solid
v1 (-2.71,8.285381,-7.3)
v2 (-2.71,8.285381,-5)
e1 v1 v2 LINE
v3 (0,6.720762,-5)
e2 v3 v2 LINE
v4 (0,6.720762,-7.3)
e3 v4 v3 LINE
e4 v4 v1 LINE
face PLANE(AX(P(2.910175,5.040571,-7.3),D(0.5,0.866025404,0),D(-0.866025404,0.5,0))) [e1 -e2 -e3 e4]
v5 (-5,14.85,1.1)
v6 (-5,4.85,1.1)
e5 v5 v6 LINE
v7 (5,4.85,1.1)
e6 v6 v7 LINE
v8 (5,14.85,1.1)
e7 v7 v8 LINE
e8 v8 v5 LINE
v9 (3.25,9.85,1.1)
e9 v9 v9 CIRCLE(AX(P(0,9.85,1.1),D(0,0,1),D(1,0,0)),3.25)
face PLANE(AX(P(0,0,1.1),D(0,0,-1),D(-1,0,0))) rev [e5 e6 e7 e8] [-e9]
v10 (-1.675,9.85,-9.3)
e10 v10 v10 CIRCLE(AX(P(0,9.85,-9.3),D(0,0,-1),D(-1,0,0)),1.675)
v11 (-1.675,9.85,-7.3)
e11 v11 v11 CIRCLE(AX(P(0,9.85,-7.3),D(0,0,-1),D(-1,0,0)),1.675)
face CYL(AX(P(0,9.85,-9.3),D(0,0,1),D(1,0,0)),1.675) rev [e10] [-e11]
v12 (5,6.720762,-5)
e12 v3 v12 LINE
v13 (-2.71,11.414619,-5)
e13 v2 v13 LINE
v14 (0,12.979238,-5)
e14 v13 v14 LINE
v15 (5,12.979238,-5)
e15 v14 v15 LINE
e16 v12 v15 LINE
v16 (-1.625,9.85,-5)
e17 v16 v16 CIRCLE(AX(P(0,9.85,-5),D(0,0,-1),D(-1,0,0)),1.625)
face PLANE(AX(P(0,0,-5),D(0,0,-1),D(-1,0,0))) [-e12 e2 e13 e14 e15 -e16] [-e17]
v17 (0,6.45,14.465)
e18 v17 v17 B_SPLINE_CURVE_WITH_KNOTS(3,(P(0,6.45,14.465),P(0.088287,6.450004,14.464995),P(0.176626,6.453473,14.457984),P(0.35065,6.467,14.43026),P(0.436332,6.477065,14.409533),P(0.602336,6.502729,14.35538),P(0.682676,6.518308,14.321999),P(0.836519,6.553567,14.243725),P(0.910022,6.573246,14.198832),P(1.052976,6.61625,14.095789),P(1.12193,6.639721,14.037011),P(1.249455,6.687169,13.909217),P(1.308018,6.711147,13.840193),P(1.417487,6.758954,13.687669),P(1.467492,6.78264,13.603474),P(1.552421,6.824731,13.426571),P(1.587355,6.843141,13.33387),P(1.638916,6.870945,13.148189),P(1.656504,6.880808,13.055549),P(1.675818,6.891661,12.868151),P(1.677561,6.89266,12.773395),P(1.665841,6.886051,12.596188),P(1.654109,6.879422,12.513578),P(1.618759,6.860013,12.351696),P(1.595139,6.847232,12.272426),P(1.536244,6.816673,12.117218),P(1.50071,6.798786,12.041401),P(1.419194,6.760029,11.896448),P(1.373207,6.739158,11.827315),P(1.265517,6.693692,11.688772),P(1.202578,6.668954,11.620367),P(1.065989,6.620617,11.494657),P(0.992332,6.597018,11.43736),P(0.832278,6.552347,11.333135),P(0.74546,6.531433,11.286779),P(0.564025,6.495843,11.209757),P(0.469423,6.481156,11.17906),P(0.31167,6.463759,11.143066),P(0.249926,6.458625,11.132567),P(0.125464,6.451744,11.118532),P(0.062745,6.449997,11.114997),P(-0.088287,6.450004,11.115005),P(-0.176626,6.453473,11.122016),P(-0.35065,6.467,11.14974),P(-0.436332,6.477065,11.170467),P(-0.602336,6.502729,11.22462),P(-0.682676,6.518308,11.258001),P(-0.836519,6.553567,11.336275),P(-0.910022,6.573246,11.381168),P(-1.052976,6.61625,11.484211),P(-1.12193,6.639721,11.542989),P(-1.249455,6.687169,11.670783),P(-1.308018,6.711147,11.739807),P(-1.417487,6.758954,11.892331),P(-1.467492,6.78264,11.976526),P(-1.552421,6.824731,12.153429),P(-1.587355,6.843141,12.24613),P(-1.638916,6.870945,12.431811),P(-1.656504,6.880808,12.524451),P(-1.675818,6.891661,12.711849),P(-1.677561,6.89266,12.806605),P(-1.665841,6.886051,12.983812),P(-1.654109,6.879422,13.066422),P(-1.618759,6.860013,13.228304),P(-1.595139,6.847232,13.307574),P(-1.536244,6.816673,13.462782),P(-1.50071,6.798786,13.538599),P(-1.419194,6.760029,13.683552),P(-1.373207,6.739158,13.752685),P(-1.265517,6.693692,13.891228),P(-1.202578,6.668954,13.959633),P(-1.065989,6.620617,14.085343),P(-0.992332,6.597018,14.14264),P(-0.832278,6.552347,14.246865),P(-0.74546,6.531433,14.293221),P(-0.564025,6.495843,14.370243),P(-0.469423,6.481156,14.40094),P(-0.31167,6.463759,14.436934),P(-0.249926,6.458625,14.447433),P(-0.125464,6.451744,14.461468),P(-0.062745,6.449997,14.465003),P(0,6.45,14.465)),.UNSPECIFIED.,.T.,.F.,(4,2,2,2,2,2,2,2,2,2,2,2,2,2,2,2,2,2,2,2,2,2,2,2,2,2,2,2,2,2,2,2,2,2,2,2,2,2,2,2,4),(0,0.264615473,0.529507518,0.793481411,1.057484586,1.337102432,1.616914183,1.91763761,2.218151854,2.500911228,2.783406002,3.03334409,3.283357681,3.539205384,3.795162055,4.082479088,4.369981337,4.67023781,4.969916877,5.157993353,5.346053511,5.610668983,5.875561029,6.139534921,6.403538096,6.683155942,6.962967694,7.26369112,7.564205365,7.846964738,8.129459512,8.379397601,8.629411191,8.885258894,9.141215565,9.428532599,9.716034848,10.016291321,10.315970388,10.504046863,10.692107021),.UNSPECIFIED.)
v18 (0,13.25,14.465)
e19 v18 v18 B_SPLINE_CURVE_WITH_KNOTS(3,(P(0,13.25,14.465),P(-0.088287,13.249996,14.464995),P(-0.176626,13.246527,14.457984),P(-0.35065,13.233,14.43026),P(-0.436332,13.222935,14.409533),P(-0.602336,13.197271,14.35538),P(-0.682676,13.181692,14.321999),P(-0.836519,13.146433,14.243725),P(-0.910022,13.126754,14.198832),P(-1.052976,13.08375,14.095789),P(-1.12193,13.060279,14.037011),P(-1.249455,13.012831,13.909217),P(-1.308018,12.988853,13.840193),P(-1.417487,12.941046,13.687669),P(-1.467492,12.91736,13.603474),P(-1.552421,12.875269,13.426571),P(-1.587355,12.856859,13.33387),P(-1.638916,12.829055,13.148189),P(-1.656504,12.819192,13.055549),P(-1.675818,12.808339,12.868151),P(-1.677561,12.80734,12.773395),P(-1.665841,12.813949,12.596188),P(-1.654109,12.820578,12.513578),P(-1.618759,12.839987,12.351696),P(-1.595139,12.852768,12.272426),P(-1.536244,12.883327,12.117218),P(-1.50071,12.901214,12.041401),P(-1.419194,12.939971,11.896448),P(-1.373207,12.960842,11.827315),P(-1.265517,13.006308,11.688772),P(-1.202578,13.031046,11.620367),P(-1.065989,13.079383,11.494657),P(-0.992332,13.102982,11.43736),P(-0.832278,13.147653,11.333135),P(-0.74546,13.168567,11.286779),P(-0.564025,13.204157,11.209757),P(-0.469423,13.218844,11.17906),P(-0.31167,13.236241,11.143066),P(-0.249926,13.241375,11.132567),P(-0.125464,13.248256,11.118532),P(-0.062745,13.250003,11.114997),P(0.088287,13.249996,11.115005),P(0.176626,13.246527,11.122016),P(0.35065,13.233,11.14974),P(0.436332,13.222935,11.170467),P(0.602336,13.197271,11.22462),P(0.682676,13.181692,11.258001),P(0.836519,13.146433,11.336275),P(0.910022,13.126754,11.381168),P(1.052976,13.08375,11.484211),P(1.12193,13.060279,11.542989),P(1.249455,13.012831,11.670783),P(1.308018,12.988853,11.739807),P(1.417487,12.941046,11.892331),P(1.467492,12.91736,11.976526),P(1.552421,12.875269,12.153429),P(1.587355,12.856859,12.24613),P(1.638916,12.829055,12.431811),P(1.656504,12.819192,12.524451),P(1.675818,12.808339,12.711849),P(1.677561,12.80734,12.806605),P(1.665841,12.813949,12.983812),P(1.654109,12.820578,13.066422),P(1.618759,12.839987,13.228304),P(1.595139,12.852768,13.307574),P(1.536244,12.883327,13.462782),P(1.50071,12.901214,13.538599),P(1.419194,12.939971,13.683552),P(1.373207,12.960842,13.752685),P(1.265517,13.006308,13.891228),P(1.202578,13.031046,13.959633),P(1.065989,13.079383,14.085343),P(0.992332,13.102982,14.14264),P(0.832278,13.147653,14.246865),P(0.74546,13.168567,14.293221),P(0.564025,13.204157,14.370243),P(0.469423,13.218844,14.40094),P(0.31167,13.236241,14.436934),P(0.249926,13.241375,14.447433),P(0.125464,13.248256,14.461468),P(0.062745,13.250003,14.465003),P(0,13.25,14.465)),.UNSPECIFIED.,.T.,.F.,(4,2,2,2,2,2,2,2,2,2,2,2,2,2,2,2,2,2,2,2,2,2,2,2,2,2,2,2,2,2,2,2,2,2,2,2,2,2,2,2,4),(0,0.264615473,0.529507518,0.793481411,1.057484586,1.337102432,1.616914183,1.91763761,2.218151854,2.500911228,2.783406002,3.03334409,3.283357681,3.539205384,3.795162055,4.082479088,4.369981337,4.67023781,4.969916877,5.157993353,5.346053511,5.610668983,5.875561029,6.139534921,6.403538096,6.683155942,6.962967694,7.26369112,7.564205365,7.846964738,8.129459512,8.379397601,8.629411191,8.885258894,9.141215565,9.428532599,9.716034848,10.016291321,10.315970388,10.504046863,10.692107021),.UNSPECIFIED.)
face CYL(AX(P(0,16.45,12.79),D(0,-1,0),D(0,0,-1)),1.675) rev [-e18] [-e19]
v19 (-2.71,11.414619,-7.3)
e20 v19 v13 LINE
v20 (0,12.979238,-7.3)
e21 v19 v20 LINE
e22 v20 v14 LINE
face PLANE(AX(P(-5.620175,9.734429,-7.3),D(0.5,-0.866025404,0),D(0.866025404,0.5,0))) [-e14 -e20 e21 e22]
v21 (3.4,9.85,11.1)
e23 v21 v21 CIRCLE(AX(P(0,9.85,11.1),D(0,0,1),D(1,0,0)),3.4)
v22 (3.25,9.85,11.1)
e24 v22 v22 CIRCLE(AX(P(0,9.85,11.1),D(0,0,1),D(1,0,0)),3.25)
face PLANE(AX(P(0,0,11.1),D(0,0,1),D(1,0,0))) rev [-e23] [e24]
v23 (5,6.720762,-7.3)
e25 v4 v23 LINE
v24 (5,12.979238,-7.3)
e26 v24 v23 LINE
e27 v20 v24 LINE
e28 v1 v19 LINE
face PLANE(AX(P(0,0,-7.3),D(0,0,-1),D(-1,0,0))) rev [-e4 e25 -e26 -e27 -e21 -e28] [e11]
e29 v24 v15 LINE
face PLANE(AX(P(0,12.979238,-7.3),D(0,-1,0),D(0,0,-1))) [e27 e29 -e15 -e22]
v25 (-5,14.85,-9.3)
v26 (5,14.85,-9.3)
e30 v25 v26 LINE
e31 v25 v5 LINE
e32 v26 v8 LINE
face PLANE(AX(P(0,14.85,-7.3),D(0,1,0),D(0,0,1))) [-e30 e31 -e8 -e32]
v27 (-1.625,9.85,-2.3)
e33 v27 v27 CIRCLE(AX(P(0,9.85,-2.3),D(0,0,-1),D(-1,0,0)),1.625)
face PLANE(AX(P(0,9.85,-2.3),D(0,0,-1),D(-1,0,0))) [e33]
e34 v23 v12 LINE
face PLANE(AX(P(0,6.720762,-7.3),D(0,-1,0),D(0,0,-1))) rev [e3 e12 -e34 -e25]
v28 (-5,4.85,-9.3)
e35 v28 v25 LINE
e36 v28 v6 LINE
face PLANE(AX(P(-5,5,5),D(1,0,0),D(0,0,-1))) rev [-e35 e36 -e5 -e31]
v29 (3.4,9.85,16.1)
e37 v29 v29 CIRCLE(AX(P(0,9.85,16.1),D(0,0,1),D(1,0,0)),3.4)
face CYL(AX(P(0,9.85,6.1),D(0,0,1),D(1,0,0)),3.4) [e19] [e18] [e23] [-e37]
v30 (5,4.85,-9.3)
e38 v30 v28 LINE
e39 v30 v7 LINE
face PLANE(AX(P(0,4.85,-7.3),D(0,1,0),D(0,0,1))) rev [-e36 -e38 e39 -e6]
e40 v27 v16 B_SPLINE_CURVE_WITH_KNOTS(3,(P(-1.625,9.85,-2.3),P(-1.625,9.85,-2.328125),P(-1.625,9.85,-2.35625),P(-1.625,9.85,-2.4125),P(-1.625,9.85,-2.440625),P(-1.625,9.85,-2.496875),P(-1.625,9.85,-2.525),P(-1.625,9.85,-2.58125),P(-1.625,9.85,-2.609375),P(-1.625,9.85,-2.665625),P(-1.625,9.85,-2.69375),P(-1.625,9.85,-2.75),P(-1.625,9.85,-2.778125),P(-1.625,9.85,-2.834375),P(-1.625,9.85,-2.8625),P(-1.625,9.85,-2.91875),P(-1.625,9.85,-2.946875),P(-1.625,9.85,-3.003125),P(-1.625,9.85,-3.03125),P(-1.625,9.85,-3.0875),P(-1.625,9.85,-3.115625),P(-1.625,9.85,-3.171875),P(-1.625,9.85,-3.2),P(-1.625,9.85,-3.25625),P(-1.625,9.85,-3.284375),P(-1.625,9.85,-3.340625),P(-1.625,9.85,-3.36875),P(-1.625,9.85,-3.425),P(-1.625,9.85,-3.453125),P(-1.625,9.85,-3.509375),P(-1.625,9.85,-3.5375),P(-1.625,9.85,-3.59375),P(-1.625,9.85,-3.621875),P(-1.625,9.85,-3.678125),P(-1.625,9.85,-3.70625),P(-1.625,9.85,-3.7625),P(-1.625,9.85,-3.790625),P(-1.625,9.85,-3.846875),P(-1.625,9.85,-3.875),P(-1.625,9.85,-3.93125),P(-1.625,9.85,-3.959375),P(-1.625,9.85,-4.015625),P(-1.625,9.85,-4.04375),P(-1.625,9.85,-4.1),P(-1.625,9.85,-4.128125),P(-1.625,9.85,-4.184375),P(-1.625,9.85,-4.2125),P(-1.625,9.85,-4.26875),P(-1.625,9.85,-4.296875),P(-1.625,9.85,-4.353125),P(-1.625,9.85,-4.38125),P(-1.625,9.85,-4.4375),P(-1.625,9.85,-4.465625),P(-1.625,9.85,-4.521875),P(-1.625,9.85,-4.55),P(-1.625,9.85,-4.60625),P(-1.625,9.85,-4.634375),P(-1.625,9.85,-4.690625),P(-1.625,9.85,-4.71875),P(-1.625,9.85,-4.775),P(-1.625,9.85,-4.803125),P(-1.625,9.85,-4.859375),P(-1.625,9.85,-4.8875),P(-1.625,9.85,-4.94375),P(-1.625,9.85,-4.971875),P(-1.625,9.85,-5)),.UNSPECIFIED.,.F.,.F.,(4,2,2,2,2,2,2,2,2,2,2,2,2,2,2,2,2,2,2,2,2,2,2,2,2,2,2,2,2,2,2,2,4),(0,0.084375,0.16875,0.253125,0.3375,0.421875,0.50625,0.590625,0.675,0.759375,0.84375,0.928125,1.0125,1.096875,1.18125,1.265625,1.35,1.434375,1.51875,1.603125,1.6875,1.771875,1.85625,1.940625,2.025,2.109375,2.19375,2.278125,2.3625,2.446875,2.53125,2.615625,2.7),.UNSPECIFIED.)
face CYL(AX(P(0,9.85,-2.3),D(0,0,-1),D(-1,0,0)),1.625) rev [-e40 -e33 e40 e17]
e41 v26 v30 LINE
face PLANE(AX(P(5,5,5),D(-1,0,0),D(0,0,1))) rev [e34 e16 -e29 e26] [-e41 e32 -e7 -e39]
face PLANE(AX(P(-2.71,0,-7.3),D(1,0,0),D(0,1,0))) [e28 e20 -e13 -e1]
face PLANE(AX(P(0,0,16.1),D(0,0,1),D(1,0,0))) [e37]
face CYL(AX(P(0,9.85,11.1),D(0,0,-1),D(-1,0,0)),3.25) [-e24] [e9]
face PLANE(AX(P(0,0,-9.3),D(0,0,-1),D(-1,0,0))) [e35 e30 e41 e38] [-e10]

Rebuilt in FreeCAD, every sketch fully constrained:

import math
import FreeCAD as App
import Part
import Sketcher
from FreeCAD import Vector
Q = App.Units.Quantity

doc = App.newDocument("Part")
body = doc.addObject("PartDesign::Body", "Body")

sketch1 = doc.addObject("Sketcher::SketchObject", "Sketch")
body.addObject(sketch1)
sketch1.AttachmentSupport = (doc.XZ_Plane, [""])
sketch1.MapMode = "FlatFace"
sketch1.addGeometry(Part.LineSegment(Vector(-5, -5, 0), Vector(-5, 5, 0)), False)
sketch1.addGeometry(Part.LineSegment(Vector(-5, 5, 0), Vector(5, 5, 0)), False)
sketch1.addGeometry(Part.LineSegment(Vector(5, 5, 0), Vector(5, -5, 0)), False)
sketch1.addGeometry(Part.LineSegment(Vector(5, -5, 0), Vector(-5, -5, 0)), False)
sketch1.addConstraint(Sketcher.Constraint("Coincident", 0, 2, 1, 1))
sketch1.addConstraint(Sketcher.Constraint("Coincident", 1, 2, 2, 1))
sketch1.addConstraint(Sketcher.Constraint("Coincident", 2, 2, 3, 1))
sketch1.addConstraint(Sketcher.Constraint("Coincident", 3, 2, 0, 1))
sketch1.addConstraint(Sketcher.Constraint("Vertical", 0))
sketch1.addConstraint(Sketcher.Constraint("Horizontal", 1))
sketch1.addConstraint(Sketcher.Constraint("Vertical", 2))
sketch1.addConstraint(Sketcher.Constraint("Horizontal", 3))
sketch1.addConstraint(Sketcher.Constraint("Symmetric", 0, 2, 2, 2, -1, 1))
sketch1.addConstraint(Sketcher.Constraint("Equal", 3, 0))
sketch1.addConstraint(Sketcher.Constraint("DistanceX", 1, 1, 1, 2, 10.0))
pad1 = doc.addObject("PartDesign::Pad", "Pad")
body.addObject(pad1)
pad1.Profile = sketch1
pad1.Length = 5
pad1.Reversed = True

sketch2 = doc.addObject("Sketcher::SketchObject", "Sketch001")
body.addObject(sketch2)
sketch2.AttachmentSupport = (doc.XZ_Plane, [""])
sketch2.MapMode = "FlatFace"
sketch2.AttachmentOffset = App.Placement(Vector(0, 0, -5), App.Rotation())
sketch2.addGeometry(Part.Circle(Vector(0, 0, 0), Vector(0, 0, 1), 1.7), False)
sketch2.addConstraint(Sketcher.Constraint("Coincident", 0, 3, -1, 1))
sketch2.addConstraint(Sketcher.Constraint("Diameter", 0, 3.35))
pocket1 = doc.addObject("PartDesign::Pocket", "Pocket")
body.addObject(pocket1)
pocket1.Profile = sketch2
pocket1.Type = "ThroughAll"
pocket1.Midplane = True

sketch3 = doc.addObject("Sketcher::SketchObject", "Sketch002")
body.addObject(sketch3)
sketch3.AttachmentSupport = (doc.XZ_Plane, [""])
sketch3.MapMode = "FlatFace"
sketch3.AttachmentOffset = App.Placement(Vector(0, 0, -5), App.Rotation())
sketch3.addGeometry(Part.LineSegment(Vector(-1.6, -2.7, 0), Vector(-3.1, 0, 0)), False)
sketch3.addGeometry(Part.LineSegment(Vector(-3.1, 0, 0), Vector(-3.1, 5, 0)), False)
sketch3.addGeometry(Part.LineSegment(Vector(-3.1, 5, 0), Vector(3.1, 5, 0)), False)
sketch3.addGeometry(Part.LineSegment(Vector(3.1, 5, 0), Vector(3.1, 0, 0)), False)
sketch3.addGeometry(Part.LineSegment(Vector(3.1, 0, 0), Vector(1.6, -2.7, 0)), False)
sketch3.addGeometry(Part.LineSegment(Vector(1.6, -2.7, 0), Vector(-1.6, -2.7, 0)), False)
sketch3.addGeometry(Part.Circle(Vector(0, 0, 0), Vector(0, 0, 1), 1.7), False)
sketch3.addConstraint(Sketcher.Constraint("Coincident", 0, 2, 1, 1))
sketch3.addConstraint(Sketcher.Constraint("Coincident", 1, 2, 2, 1))
sketch3.addConstraint(Sketcher.Constraint("Coincident", 2, 2, 3, 1))
sketch3.addConstraint(Sketcher.Constraint("Coincident", 3, 2, 4, 1))
sketch3.addConstraint(Sketcher.Constraint("Coincident", 4, 2, 5, 1))
sketch3.addConstraint(Sketcher.Constraint("Coincident", 5, 2, 0, 1))
sketch3.addConstraint(Sketcher.Constraint("Vertical", 1))
sketch3.addConstraint(Sketcher.Constraint("Horizontal", 2))
sketch3.addConstraint(Sketcher.Constraint("Vertical", 3))
sketch3.addConstraint(Sketcher.Constraint("Horizontal", 5))
sketch3.addConstraint(Sketcher.Constraint("Coincident", 6, 3, -1, 1))
sketch3.addConstraint(Sketcher.Constraint("Symmetric", 0, 2, 3, 2, -1, 1))
sketch3.addConstraint(Sketcher.Constraint("PointOnObject", 0, 2, -1))
sketch3.addConstraint(Sketcher.Constraint("Equal", 0, 4))
sketch3.addConstraint(Sketcher.Constraint("Diameter", 6, 3.35))
sketch3.addConstraint(Sketcher.Constraint("DistanceY", 1, 1, 1, 2, 5.0))
sketch3.addConstraint(Sketcher.Constraint("Angle", 0, Q("120 deg")))
sketch3.addConstraint(Sketcher.Constraint("DistanceY", 4, 2, -1, 1, 2.71))
sketch3.addConstraint(Sketcher.Constraint("DistanceX", 5, 2, 5, 1, 3.129238))
pocket2 = doc.addObject("PartDesign::Pocket", "Pocket001")
body.addObject(pocket2)
pocket2.Profile = sketch3
pocket2.Length = 2.3
pocket2.Reversed = True

sketch4 = doc.addObject("Sketcher::SketchObject", "Sketch003")
body.addObject(sketch4)
sketch4.AttachmentSupport = (doc.XZ_Plane, [""])
sketch4.MapMode = "FlatFace"
sketch4.AttachmentOffset = App.Placement(Vector(0, 0, -5), App.Rotation())
sketch4.addGeometry(Part.LineSegment(Vector(-5, -5, 0), Vector(-5, 5, 0)), False)
sketch4.addGeometry(Part.LineSegment(Vector(-5, 5, 0), Vector(5, 5, 0)), False)
sketch4.addGeometry(Part.LineSegment(Vector(5, 5, 0), Vector(5, -5, 0)), False)
sketch4.addGeometry(Part.LineSegment(Vector(5, -5, 0), Vector(-5, -5, 0)), False)
sketch4.addConstraint(Sketcher.Constraint("Coincident", 0, 2, 1, 1))
sketch4.addConstraint(Sketcher.Constraint("Coincident", 1, 2, 2, 1))
sketch4.addConstraint(Sketcher.Constraint("Coincident", 2, 2, 3, 1))
sketch4.addConstraint(Sketcher.Constraint("Coincident", 3, 2, 0, 1))
sketch4.addConstraint(Sketcher.Constraint("Vertical", 0))
sketch4.addConstraint(Sketcher.Constraint("Horizontal", 1))
sketch4.addConstraint(Sketcher.Constraint("Vertical", 2))
sketch4.addConstraint(Sketcher.Constraint("Horizontal", 3))
sketch4.addConstraint(Sketcher.Constraint("Symmetric", 0, 2, 2, 2, -1, 1))
sketch4.addConstraint(Sketcher.Constraint("Equal", 3, 0))
sketch4.addConstraint(Sketcher.Constraint("DistanceX", 1, 1, 1, 2, 10.0))
pad2 = doc.addObject("PartDesign::Pad", "Pad001")
body.addObject(pad2)
pad2.Profile = sketch4
pad2.Length = 2.7
pad2.Reversed = True

sketch5 = doc.addObject("Sketcher::SketchObject", "Sketch004")
body.addObject(sketch5)
sketch5.AttachmentSupport = (doc.XZ_Plane, [""])
sketch5.MapMode = "FlatFace"
sketch5.AttachmentOffset = App.Placement(Vector(0, 0, -7.7), App.Rotation())
sketch5.addGeometry(Part.LineSegment(Vector(-5, -5, 0), Vector(-5, 5, 0)), False)
sketch5.addGeometry(Part.LineSegment(Vector(-5, 5, 0), Vector(5, 5, 0)), False)
sketch5.addGeometry(Part.LineSegment(Vector(5, 5, 0), Vector(5, -5, 0)), False)
sketch5.addGeometry(Part.LineSegment(Vector(5, -5, 0), Vector(-5, -5, 0)), False)
sketch5.addConstraint(Sketcher.Constraint("Coincident", 0, 2, 1, 1))
sketch5.addConstraint(Sketcher.Constraint("Coincident", 1, 2, 2, 1))
sketch5.addConstraint(Sketcher.Constraint("Coincident", 2, 2, 3, 1))
sketch5.addConstraint(Sketcher.Constraint("Coincident", 3, 2, 0, 1))
sketch5.addConstraint(Sketcher.Constraint("Vertical", 0))
sketch5.addConstraint(Sketcher.Constraint("Horizontal", 1))
sketch5.addConstraint(Sketcher.Constraint("Vertical", 2))
sketch5.addConstraint(Sketcher.Constraint("Horizontal", 3))
sketch5.addConstraint(Sketcher.Constraint("Symmetric", 0, 2, 2, 2, -1, 1))
sketch5.addConstraint(Sketcher.Constraint("Equal", 3, 0))
sketch5.addConstraint(Sketcher.Constraint("DistanceX", 1, 1, 1, 2, 10.0))
pad3 = doc.addObject("PartDesign::Pad", "Pad002")
body.addObject(pad3)
pad3.Profile = sketch5
pad3.Length = 7
pad3.Reversed = True

sketch6 = doc.addObject("Sketcher::SketchObject", "Sketch005")
body.addObject(sketch6)
sketch6.AttachmentSupport = (doc.XY_Plane, [""])
sketch6.MapMode = "FlatFace"
sketch6.AttachmentOffset = App.Placement(Vector(0, 0, -5), App.Rotation())
sketch6.addGeometry(Part.Circle(Vector(0, 9.8, 0), Vector(0, 0, 1), 2.1), False)
sketch6.addConstraint(Sketcher.Constraint("PointOnObject", 0, 3, -2))
sketch6.addConstraint(Sketcher.Constraint("Diameter", 0, 4.3))
sketch6.addConstraint(Sketcher.Constraint("DistanceY", -1, 1, 0, 3, 9.85))
pocket3 = doc.addObject("PartDesign::Pocket", "Pocket002")
body.addObject(pocket3)
pocket3.Profile = sketch6
pocket3.Type = "ThroughAll"
pocket3.Reversed = True

sketch7 = doc.addObject("Sketcher::SketchObject", "Sketch006")
body.addObject(sketch7)
sketch7.AttachmentSupport = (doc.XZ_Plane, [""])
sketch7.MapMode = "FlatFace"
sketch7.AttachmentOffset = App.Placement(Vector(0, 0, -5), App.Rotation())
sketch7.addGeometry(Part.Circle(Vector(0, 0, 0), Vector(0, 0, 1), 1.7), False)
sketch7.addConstraint(Sketcher.Constraint("Coincident", 0, 3, -1, 1))
sketch7.addConstraint(Sketcher.Constraint("Diameter", 0, 3.35))
pocket4 = doc.addObject("PartDesign::Pocket", "Pocket003")
body.addObject(pocket4)
pocket4.Profile = sketch7
pocket4.Type = "ThroughAll"

sketch8 = doc.addObject("Sketcher::SketchObject", "Sketch007")
body.addObject(sketch8)
sketch8.AttachmentSupport = (doc.XZ_Plane, [""])
sketch8.MapMode = "FlatFace"
sketch8.AttachmentOffset = App.Placement(Vector(0, 0, -14.7), App.Rotation())
sketch8.addGeometry(Part.LineSegment(Vector(1.6, -2.7, 0), Vector(3.1, 0, 0)), False)
sketch8.addGeometry(Part.LineSegment(Vector(3.1, 0, 0), Vector(3.1, 5, 0)), False)
sketch8.addGeometry(Part.LineSegment(Vector(3.1, 5, 0), Vector(5, 5, 0)), False)
sketch8.addGeometry(Part.LineSegment(Vector(5, 5, 0), Vector(5, -5, 0)), False)
sketch8.addGeometry(Part.LineSegment(Vector(5, -5, 0), Vector(-5, -5, 0)), False)
sketch8.addGeometry(Part.LineSegment(Vector(-5, -5, 0), Vector(-5, 5, 0)), False)
sketch8.addGeometry(Part.LineSegment(Vector(-5, 5, 0), Vector(-3.1, 5, 0)), False)
sketch8.addGeometry(Part.LineSegment(Vector(-3.1, 5, 0), Vector(-3.1, 0, 0)), False)
sketch8.addGeometry(Part.LineSegment(Vector(-3.1, 0, 0), Vector(-1.6, -2.7, 0)), False)
sketch8.addGeometry(Part.LineSegment(Vector(-1.6, -2.7, 0), Vector(1.6, -2.7, 0)), False)
sketch8.addConstraint(Sketcher.Constraint("Coincident", 0, 2, 1, 1))
sketch8.addConstraint(Sketcher.Constraint("Coincident", 1, 2, 2, 1))
sketch8.addConstraint(Sketcher.Constraint("Coincident", 2, 2, 3, 1))
sketch8.addConstraint(Sketcher.Constraint("Coincident", 3, 2, 4, 1))
sketch8.addConstraint(Sketcher.Constraint("Coincident", 4, 2, 5, 1))
sketch8.addConstraint(Sketcher.Constraint("Coincident", 5, 2, 6, 1))
sketch8.addConstraint(Sketcher.Constraint("Coincident", 6, 2, 7, 1))
sketch8.addConstraint(Sketcher.Constraint("Coincident", 7, 2, 8, 1))
sketch8.addConstraint(Sketcher.Constraint("Coincident", 8, 2, 9, 1))
sketch8.addConstraint(Sketcher.Constraint("Coincident", 9, 2, 0, 1))
sketch8.addConstraint(Sketcher.Constraint("Vertical", 1))
sketch8.addConstraint(Sketcher.Constraint("Horizontal", 2))
sketch8.addConstraint(Sketcher.Constraint("Vertical", 3))
sketch8.addConstraint(Sketcher.Constraint("Horizontal", 4))
sketch8.addConstraint(Sketcher.Constraint("Vertical", 5))
sketch8.addConstraint(Sketcher.Constraint("Horizontal", 6))
sketch8.addConstraint(Sketcher.Constraint("Vertical", 7))
sketch8.addConstraint(Sketcher.Constraint("Horizontal", 9))
sketch8.addConstraint(Sketcher.Constraint("Symmetric", 2, 2, 4, 2, -1, 1))
sketch8.addConstraint(Sketcher.Constraint("Symmetric", 0, 2, 7, 2, -1, 1))
sketch8.addConstraint(Sketcher.Constraint("PointOnObject", 0, 2, -1))
sketch8.addConstraint(Sketcher.Constraint("Horizontal", 2, 2, 5, 2))
sketch8.addConstraint(Sketcher.Constraint("Equal", 4, 3))
sketch8.addConstraint(Sketcher.Constraint("Equal", 0, 8))
sketch8.addConstraint(Sketcher.Constraint("DistanceX", 4, 2, 4, 1, 10.0))
sketch8.addConstraint(Sketcher.Constraint("Angle", 0, Q("60 deg")))
sketch8.addConstraint(Sketcher.Constraint("DistanceY", 8, 2, -1, 1, 2.71))
sketch8.addConstraint(Sketcher.Constraint("DistanceX", 2, 1, 2, 2, 1.870762))
pad4 = doc.addObject("PartDesign::Pad", "Pad003")
body.addObject(pad4)
pad4.Profile = sketch8
pad4.Length = 2.3
pad4.Reversed = True

sketch9 = doc.addObject("Sketcher::SketchObject", "Sketch008")
body.addObject(sketch9)
sketch9.AttachmentSupport = (doc.XZ_Plane, [""])
sketch9.MapMode = "FlatFace"
sketch9.AttachmentOffset = App.Placement(Vector(0, 0, -17), App.Rotation())
sketch9.addGeometry(Part.LineSegment(Vector(-5, -5, 0), Vector(-5, 5, 0)), False)
sketch9.addGeometry(Part.LineSegment(Vector(-5, 5, 0), Vector(5, 5, 0)), False)
sketch9.addGeometry(Part.LineSegment(Vector(5, 5, 0), Vector(5, -5, 0)), False)
sketch9.addGeometry(Part.LineSegment(Vector(5, -5, 0), Vector(-5, -5, 0)), False)
sketch9.addConstraint(Sketcher.Constraint("Coincident", 0, 2, 1, 1))
sketch9.addConstraint(Sketcher.Constraint("Coincident", 1, 2, 2, 1))
sketch9.addConstraint(Sketcher.Constraint("Coincident", 2, 2, 3, 1))
sketch9.addConstraint(Sketcher.Constraint("Coincident", 3, 2, 0, 1))
sketch9.addConstraint(Sketcher.Constraint("Vertical", 0))
sketch9.addConstraint(Sketcher.Constraint("Horizontal", 1))
sketch9.addConstraint(Sketcher.Constraint("Vertical", 2))
sketch9.addConstraint(Sketcher.Constraint("Horizontal", 3))
sketch9.addConstraint(Sketcher.Constraint("Symmetric", 0, 2, 2, 2, -1, 1))
sketch9.addConstraint(Sketcher.Constraint("Equal", 3, 0))
sketch9.addConstraint(Sketcher.Constraint("DistanceX", 1, 1, 1, 2, 10.0))
pad5 = doc.addObject("PartDesign::Pad", "Pad004")
body.addObject(pad5)
pad5.Profile = sketch9
pad5.Length = 2.7
pad5.Reversed = True

sketch10 = doc.addObject("Sketcher::SketchObject", "Sketch009")
body.addObject(sketch10)
sketch10.AttachmentSupport = (doc.XZ_Plane, [""])
sketch10.MapMode = "FlatFace"
sketch10.AttachmentOffset = App.Placement(Vector(0, 0, -17), App.Rotation())
sketch10.addGeometry(Part.Circle(Vector(0, 0, 0), Vector(0, 0, 1), 1.7), False)
sketch10.addConstraint(Sketcher.Constraint("Coincident", 0, 3, -1, 1))
sketch10.addConstraint(Sketcher.Constraint("Diameter", 0, 3.35))
pocket5 = doc.addObject("PartDesign::Pocket", "Pocket004")
body.addObject(pocket5)
pocket5.Profile = sketch10
pocket5.Length = 2.7

sketch11 = doc.addObject("Sketcher::SketchObject", "Sketch010")
body.addObject(sketch11)
sketch11.AttachmentSupport = (doc.XY_Plane, [""])
sketch11.MapMode = "FlatFace"
sketch11.AttachmentOffset = App.Placement(Vector(0, 0, 5), App.Rotation())
sketch11.addGeometry(Part.LineSegment(Vector(-5, 20, 0), Vector(-5, 0, 0)), False)
sketch11.addGeometry(Part.LineSegment(Vector(-5, 0, 0), Vector(5, 0, 0)), False)
sketch11.addGeometry(Part.LineSegment(Vector(5, 0, 0), Vector(5, 20, 0)), False)
sketch11.addGeometry(Part.LineSegment(Vector(5, 20, 0), Vector(-5, 20, 0)), False)
sketch11.addConstraint(Sketcher.Constraint("Coincident", 0, 2, 1, 1))
sketch11.addConstraint(Sketcher.Constraint("Coincident", 1, 2, 2, 1))
sketch11.addConstraint(Sketcher.Constraint("Coincident", 2, 2, 3, 1))
sketch11.addConstraint(Sketcher.Constraint("Coincident", 3, 2, 0, 1))
sketch11.addConstraint(Sketcher.Constraint("Vertical", 0))
sketch11.addConstraint(Sketcher.Constraint("Horizontal", 1))
sketch11.addConstraint(Sketcher.Constraint("Vertical", 2))
sketch11.addConstraint(Sketcher.Constraint("Horizontal", 3))
sketch11.addConstraint(Sketcher.Constraint("Symmetric", 0, 2, 1, 2, -1, 1))
sketch11.addConstraint(Sketcher.Constraint("DistanceX", 1, 1, 1, 2, 10.0))
sketch11.addConstraint(Sketcher.Constraint("DistanceY", 0, 2, 0, 1, 19.7))
pocket6 = doc.addObject("PartDesign::Pocket", "Pocket005")
body.addObject(pocket6)
pocket6.Profile = sketch11
pocket6.Length = 2.29

sketch12 = doc.addObject("Sketcher::SketchObject", "Sketch011")
body.addObject(sketch12)
sketch12.AttachmentSupport = (doc.XZ_Plane, [""])
sketch12.MapMode = "FlatFace"
sketch12.AttachmentOffset = App.Placement(Vector(0, 0, 1), App.Rotation())
sketch12.addGeometry(Part.LineSegment(Vector(5, -5, 0), Vector(5, 2.7, 0)), False)
sketch12.addGeometry(Part.LineSegment(Vector(5, 2.7, 0), Vector(-5, 2.7, 0)), False)
sketch12.addGeometry(Part.LineSegment(Vector(-5, 2.7, 0), Vector(-5, -5, 0)), False)
sketch12.addGeometry(Part.LineSegment(Vector(-5, -5, 0), Vector(5, -5, 0)), False)
sketch12.addGeometry(Part.Circle(Vector(0, 0, 0), Vector(0, 0, 1), 1.7), False)
sketch12.addConstraint(Sketcher.Constraint("Coincident", 0, 2, 1, 1))
sketch12.addConstraint(Sketcher.Constraint("Coincident", 1, 2, 2, 1))
sketch12.addConstraint(Sketcher.Constraint("Coincident", 2, 2, 3, 1))
sketch12.addConstraint(Sketcher.Constraint("Coincident", 3, 2, 0, 1))
sketch12.addConstraint(Sketcher.Constraint("Vertical", 0))
sketch12.addConstraint(Sketcher.Constraint("Horizontal", 1))
sketch12.addConstraint(Sketcher.Constraint("Vertical", 2))
sketch12.addConstraint(Sketcher.Constraint("Horizontal", 3))
sketch12.addConstraint(Sketcher.Constraint("Coincident", 4, 3, -1, 1))
sketch12.addConstraint(Sketcher.Constraint("Diameter", 4, 3.35))
sketch12.addConstraint(Sketcher.Constraint("DistanceX", 1, 2, 1, 1, 10.0))
sketch12.addConstraint(Sketcher.Constraint("DistanceX", -1, 1, 0, 2, 5.0))
sketch12.addConstraint(Sketcher.Constraint("DistanceY", 2, 2, -1, 1, 5.0))
sketch12.addConstraint(Sketcher.Constraint("DistanceY", 0, 1, 0, 2, 7.71))
pad6 = doc.addObject("PartDesign::Pad", "Pad005")
body.addObject(pad6)
pad6.Profile = sketch12
pad6.Length = 1
pad6.Reversed = True

sketch13 = doc.addObject("Sketcher::SketchObject", "Sketch012")
body.addObject(sketch13)
sketch13.AttachmentSupport = (doc.XZ_Plane, [""])
sketch13.MapMode = "FlatFace"
sketch13.AttachmentOffset = App.Placement(Vector(0, 0, -19.7), App.Rotation())
sketch13.addGeometry(Part.LineSegment(Vector(-5, -5, 0), Vector(-5, 2.7, 0)), False)
sketch13.addGeometry(Part.LineSegment(Vector(-5, 2.7, 0), Vector(5, 2.7, 0)), False)
sketch13.addGeometry(Part.LineSegment(Vector(5, 2.7, 0), Vector(5, -5, 0)), False)
sketch13.addGeometry(Part.LineSegment(Vector(5, -5, 0), Vector(-5, -5, 0)), False)
sketch13.addGeometry(Part.Circle(Vector(0, 0, 0), Vector(0, 0, 1), 1.7), False)
sketch13.addConstraint(Sketcher.Constraint("Coincident", 0, 2, 1, 1))
sketch13.addConstraint(Sketcher.Constraint("Coincident", 1, 2, 2, 1))
sketch13.addConstraint(Sketcher.Constraint("Coincident", 2, 2, 3, 1))
sketch13.addConstraint(Sketcher.Constraint("Coincident", 3, 2, 0, 1))
sketch13.addConstraint(Sketcher.Constraint("Vertical", 0))
sketch13.addConstraint(Sketcher.Constraint("Horizontal", 1))
sketch13.addConstraint(Sketcher.Constraint("Vertical", 2))
sketch13.addConstraint(Sketcher.Constraint("Horizontal", 3))
sketch13.addConstraint(Sketcher.Constraint("Coincident", 4, 3, -1, 1))
sketch13.addConstraint(Sketcher.Constraint("Diameter", 4, 3.35))
sketch13.addConstraint(Sketcher.Constraint("DistanceX", 1, 1, 1, 2, 10.0))
sketch13.addConstraint(Sketcher.Constraint("DistanceX", 0, 2, -1, 1, 5.0))
sketch13.addConstraint(Sketcher.Constraint("DistanceY", 2, 2, -1, 1, 5.0))
sketch13.addConstraint(Sketcher.Constraint("DistanceY", 0, 1, 0, 2, 7.71))
pad7 = doc.addObject("PartDesign::Pad", "Pad006")
body.addObject(pad7)
pad7.Profile = sketch13
pad7.Length = 1
pad7.Reversed = True
body2 = doc.addObject("PartDesign::Body", "Body001")

sketch14 = doc.addObject("Sketcher::SketchObject", "Sketch013")
body2.addObject(sketch14)
sketch14.AttachmentSupport = (doc.getObject("XY_Plane001"), [""])
sketch14.MapMode = "FlatFace"
sketch14.AttachmentOffset = App.Placement(Vector(0, 0, -5), App.Rotation())
sketch14.addGeometry(Part.Circle(Vector(0, 9.8, 0), Vector(0, 0, 1), 2.1), False)
sketch14.addConstraint(Sketcher.Constraint("PointOnObject", 0, 3, -2))
sketch14.addConstraint(Sketcher.Constraint("Diameter", 0, 4.3))
sketch14.addConstraint(Sketcher.Constraint("DistanceY", -1, 1, 0, 3, 9.85))
pad8 = doc.addObject("PartDesign::Pad", "Pad007")
body2.addObject(pad8)
pad8.Profile = sketch14
pad8.Length = 0.76
doc.recompute()

boolean = doc.addObject("PartDesign::Boolean", "Boolean")
body2.addObject(boolean)
boolean.Type = "Fuse"
boolean.addObjects([body])

sketch15 = doc.addObject("Sketcher::SketchObject", "Sketch014")
body2.addObject(sketch15)
sketch15.AttachmentSupport = (doc.getObject("XY_Plane001"), [""])
sketch15.MapMode = "FlatFace"
sketch15.AttachmentOffset = App.Placement(Vector(0, 0, -5), App.Rotation())
sketch15.addGeometry(Part.LineSegment(Vector(5, 13, 0), Vector(0, 13, 0)), False)
sketch15.addGeometry(Part.LineSegment(Vector(0, 13, 0), Vector(-2.7, 11.4, 0)), False)
sketch15.addGeometry(Part.LineSegment(Vector(-2.7, 11.4, 0), Vector(-2.7, 8.3, 0)), False)
sketch15.addGeometry(Part.LineSegment(Vector(-2.7, 8.3, 0), Vector(0, 6.7, 0)), False)
sketch15.addGeometry(Part.LineSegment(Vector(0, 6.7, 0), Vector(5, 6.7, 0)), False)
sketch15.addGeometry(Part.LineSegment(Vector(5, 6.7, 0), Vector(5, 4.8, 0)), False)
sketch15.addGeometry(Part.LineSegment(Vector(5, 4.8, 0), Vector(-5, 4.8, 0)), False)
sketch15.addGeometry(Part.LineSegment(Vector(-5, 4.8, 0), Vector(-5, 14.8, 0)), False)
sketch15.addGeometry(Part.LineSegment(Vector(-5, 14.8, 0), Vector(5, 14.8, 0)), False)
sketch15.addGeometry(Part.LineSegment(Vector(5, 14.8, 0), Vector(5, 13, 0)), False)
sketch15.addConstraint(Sketcher.Constraint("Coincident", 0, 2, 1, 1))
sketch15.addConstraint(Sketcher.Constraint("Coincident", 1, 2, 2, 1))
sketch15.addConstraint(Sketcher.Constraint("Coincident", 2, 2, 3, 1))
sketch15.addConstraint(Sketcher.Constraint("Coincident", 3, 2, 4, 1))
sketch15.addConstraint(Sketcher.Constraint("Coincident", 4, 2, 5, 1))
sketch15.addConstraint(Sketcher.Constraint("Coincident", 5, 2, 6, 1))
sketch15.addConstraint(Sketcher.Constraint("Coincident", 6, 2, 7, 1))
sketch15.addConstraint(Sketcher.Constraint("Coincident", 7, 2, 8, 1))
sketch15.addConstraint(Sketcher.Constraint("Coincident", 8, 2, 9, 1))
sketch15.addConstraint(Sketcher.Constraint("Coincident", 9, 2, 0, 1))
sketch15.addConstraint(Sketcher.Constraint("Horizontal", 0))
sketch15.addConstraint(Sketcher.Constraint("Vertical", 2))
sketch15.addConstraint(Sketcher.Constraint("Horizontal", 4))
sketch15.addConstraint(Sketcher.Constraint("Vertical", 5))
sketch15.addConstraint(Sketcher.Constraint("Horizontal", 6))
sketch15.addConstraint(Sketcher.Constraint("Vertical", 7))
sketch15.addConstraint(Sketcher.Constraint("Horizontal", 8))
sketch15.addConstraint(Sketcher.Constraint("Vertical", 9))
sketch15.addConstraint(Sketcher.Constraint("PointOnObject", 0, 2, -2))
sketch15.addConstraint(Sketcher.Constraint("PointOnObject", 3, 2, -2))
sketch15.addConstraint(Sketcher.Constraint("Vertical", 5, 2, 8, 2))
sketch15.addConstraint(Sketcher.Constraint("Equal", 8, 7))
sketch15.addConstraint(Sketcher.Constraint("Equal", 5, 9))
sketch15.addConstraint(Sketcher.Constraint("Equal", 1, 3))
sketch15.addConstraint(Sketcher.Constraint("DistanceX", 0, 2, 0, 1, 5.0))
sketch15.addConstraint(Sketcher.Constraint("DistanceX", 6, 2, 6, 1, 10.0))
sketch15.addConstraint(Sketcher.Constraint("Angle", 1, Q("-150 deg")))
sketch15.addConstraint(Sketcher.Constraint("DistanceX", 1, 2, -1, 1, 2.71))
sketch15.addConstraint(Sketcher.Constraint("DistanceY", -1, 1, 5, 2, 4.85))
sketch15.addConstraint(Sketcher.Constraint("DistanceY", 2, 2, 2, 1, 3.129238))
pad9 = doc.addObject("PartDesign::Pad", "Pad008")
body2.addObject(pad9)
pad9.Profile = sketch15
pad9.Length = 2.3
pad9.Reversed = True

sketch16 = doc.addObject("Sketcher::SketchObject", "Sketch015")
body2.addObject(sketch16)
sketch16.AttachmentSupport = (doc.getObject("XY_Plane001"), [""])
sketch16.MapMode = "FlatFace"
sketch16.AttachmentOffset = App.Placement(Vector(0, 0, -7.3), App.Rotation())
sketch16.addGeometry(Part.LineSegment(Vector(5, 14.8, 0), Vector(5, 4.8, 0)), False)
sketch16.addGeometry(Part.LineSegment(Vector(5, 4.8, 0), Vector(-5, 4.8, 0)), False)
sketch16.addGeometry(Part.LineSegment(Vector(-5, 4.8, 0), Vector(-5, 14.8, 0)), False)
sketch16.addGeometry(Part.LineSegment(Vector(-5, 14.8, 0), Vector(5, 14.8, 0)), False)
sketch16.addGeometry(Part.Circle(Vector(0, 9.8, 0), Vector(0, 0, 1), 1.7), False)
sketch16.addConstraint(Sketcher.Constraint("Coincident", 0, 2, 1, 1))
sketch16.addConstraint(Sketcher.Constraint("Coincident", 1, 2, 2, 1))
sketch16.addConstraint(Sketcher.Constraint("Coincident", 2, 2, 3, 1))
sketch16.addConstraint(Sketcher.Constraint("Coincident", 3, 2, 0, 1))
sketch16.addConstraint(Sketcher.Constraint("Vertical", 0))
sketch16.addConstraint(Sketcher.Constraint("Horizontal", 1))
sketch16.addConstraint(Sketcher.Constraint("Vertical", 2))
sketch16.addConstraint(Sketcher.Constraint("Horizontal", 3))
sketch16.addConstraint(Sketcher.Constraint("PointOnObject", 4, 3, -2))
sketch16.addConstraint(Sketcher.Constraint("Equal", 3, 0))
sketch16.addConstraint(Sketcher.Constraint("Diameter", 4, 3.35))
sketch16.addConstraint(Sketcher.Constraint("DistanceX", 1, 2, 1, 1, 10.0))
sketch16.addConstraint(Sketcher.Constraint("DistanceX", -1, 1, 0, 2, 5.0))
sketch16.addConstraint(Sketcher.Constraint("DistanceY", 0, 2, 4, 3, 5.0))
sketch16.addConstraint(Sketcher.Constraint("DistanceY", -1, 1, 4, 3, 9.85))
pad10 = doc.addObject("PartDesign::Pad", "Pad009")
body2.addObject(pad10)
pad10.Profile = sketch16
pad10.Length = 2
pad10.Reversed = True

sketch17 = doc.addObject("Sketcher::SketchObject", "Sketch016")
body2.addObject(sketch17)
sketch17.AttachmentSupport = (doc.getObject("XY_Plane001"), [""])
sketch17.MapMode = "FlatFace"
sketch17.AttachmentOffset = App.Placement(Vector(0, 0, -9.3), App.Rotation())
sketch17.addGeometry(Part.LineSegment(Vector(5, 21, 0), Vector(5, 15, 0)), False)
sketch17.addGeometry(Part.LineSegment(Vector(5, 15, 0), Vector(-5, 15, 0)), False)
sketch17.addGeometry(Part.LineSegment(Vector(-5, 15, 0), Vector(-5, 21, 0)), False)
sketch17.addGeometry(Part.LineSegment(Vector(-5, 21, 0), Vector(5, 21, 0)), False)
sketch17.addGeometry(Part.LineSegment(Vector(5, 5, 0), Vector(5, -1, 0)), False)
sketch17.addGeometry(Part.LineSegment(Vector(5, -1, 0), Vector(-5, -1, 0)), False)
sketch17.addGeometry(Part.LineSegment(Vector(-5, -1, 0), Vector(-5, 5, 0)), False)
sketch17.addGeometry(Part.LineSegment(Vector(-5, 5, 0), Vector(5, 5, 0)), False)
sketch17.addConstraint(Sketcher.Constraint("Coincident", 0, 2, 1, 1))
sketch17.addConstraint(Sketcher.Constraint("Coincident", 1, 2, 2, 1))
sketch17.addConstraint(Sketcher.Constraint("Coincident", 2, 2, 3, 1))
sketch17.addConstraint(Sketcher.Constraint("Coincident", 3, 2, 0, 1))
sketch17.addConstraint(Sketcher.Constraint("Coincident", 4, 2, 5, 1))
sketch17.addConstraint(Sketcher.Constraint("Coincident", 5, 2, 6, 1))
sketch17.addConstraint(Sketcher.Constraint("Coincident", 6, 2, 7, 1))
sketch17.addConstraint(Sketcher.Constraint("Coincident", 7, 2, 4, 1))
sketch17.addConstraint(Sketcher.Constraint("Vertical", 0))
sketch17.addConstraint(Sketcher.Constraint("Horizontal", 1))
sketch17.addConstraint(Sketcher.Constraint("Vertical", 2))
sketch17.addConstraint(Sketcher.Constraint("Horizontal", 3))
sketch17.addConstraint(Sketcher.Constraint("Vertical", 4))
sketch17.addConstraint(Sketcher.Constraint("Horizontal", 5))
sketch17.addConstraint(Sketcher.Constraint("Vertical", 6))
sketch17.addConstraint(Sketcher.Constraint("Horizontal", 7))
sketch17.addConstraint(Sketcher.Constraint("Vertical", 3, 2, 4, 2))
sketch17.addConstraint(Sketcher.Constraint("Vertical", 2, 2, 5, 2))
sketch17.addConstraint(Sketcher.Constraint("Equal", 2, 4))
sketch17.addConstraint(Sketcher.Constraint("DistanceX", 1, 2, 1, 1, 10.0))
sketch17.addConstraint(Sketcher.Constraint("DistanceX", -1, 1, 0, 2, 5.0))
sketch17.addConstraint(Sketcher.Constraint("DistanceY", 4, 2, -1, 1, 1.0))
sketch17.addConstraint(Sketcher.Constraint("DistanceY", 6, 2, 1, 2, 10.0))
sketch17.addConstraint(Sketcher.Constraint("DistanceY", 0, 2, 0, 1, 5.85))
pocket7 = doc.addObject("PartDesign::Pocket", "Pocket006")
body2.addObject(pocket7)
pocket7.Profile = sketch17
pocket7.Type = "ThroughAll"
pocket7.Reversed = True

sketch18 = doc.addObject("Sketcher::SketchObject", "Sketch017")
body2.addObject(sketch18)
sketch18.AttachmentSupport = (doc.getObject("XY_Plane001"), [""])
sketch18.MapMode = "FlatFace"
sketch18.AttachmentOffset = App.Placement(Vector(0, 0, 2.71), App.Rotation())
sketch18.addGeometry(Part.LineSegment(Vector(-5, 15, 0), Vector(-5, 5, 0)), False)
sketch18.addGeometry(Part.LineSegment(Vector(-5, 5, 0), Vector(5, 5, 0)), False)
sketch18.addGeometry(Part.LineSegment(Vector(5, 5, 0), Vector(5, 15, 0)), False)
sketch18.addGeometry(Part.LineSegment(Vector(5, 15, 0), Vector(-5, 15, 0)), False)
sketch18.addConstraint(Sketcher.Constraint("Coincident", 0, 2, 1, 1))
sketch18.addConstraint(Sketcher.Constraint("Coincident", 1, 2, 2, 1))
sketch18.addConstraint(Sketcher.Constraint("Coincident", 2, 2, 3, 1))
sketch18.addConstraint(Sketcher.Constraint("Coincident", 3, 2, 0, 1))
sketch18.addConstraint(Sketcher.Constraint("Vertical", 0))
sketch18.addConstraint(Sketcher.Constraint("Horizontal", 1))
sketch18.addConstraint(Sketcher.Constraint("Vertical", 2))
sketch18.addConstraint(Sketcher.Constraint("Horizontal", 3))
sketch18.addConstraint(Sketcher.Constraint("Equal", 3, 0))
sketch18.addConstraint(Sketcher.Constraint("DistanceX", 1, 1, 1, 2, 10.0))
sketch18.addConstraint(Sketcher.Constraint("DistanceX", 0, 2, -1, 1, 5.0))
sketch18.addConstraint(Sketcher.Constraint("DistanceY", -1, 1, 0, 2, 4.85))
pad11 = doc.addObject("PartDesign::Pad", "Pad010")
body2.addObject(pad11)
pad11.Profile = sketch18
pad11.Length = 6
pad11.Reversed = True

sketch19 = doc.addObject("Sketcher::SketchObject", "Sketch018")
body2.addObject(sketch19)
sketch19.AttachmentSupport = (doc.getObject("XY_Plane001"), [""])
sketch19.MapMode = "FlatFace"
sketch19.AttachmentOffset = App.Placement(Vector(0, 0, 2.71), App.Rotation())
sketch19.addGeometry(Part.LineSegment(Vector(-5, 15, 0), Vector(-5, 5, 0)), False)
sketch19.addGeometry(Part.LineSegment(Vector(-5, 5, 0), Vector(5, 5, 0)), False)
sketch19.addGeometry(Part.LineSegment(Vector(5, 5, 0), Vector(5, 15, 0)), False)
sketch19.addGeometry(Part.LineSegment(Vector(5, 15, 0), Vector(-5, 15, 0)), False)
sketch19.addConstraint(Sketcher.Constraint("Coincident", 0, 2, 1, 1))
sketch19.addConstraint(Sketcher.Constraint("Coincident", 1, 2, 2, 1))
sketch19.addConstraint(Sketcher.Constraint("Coincident", 2, 2, 3, 1))
sketch19.addConstraint(Sketcher.Constraint("Coincident", 3, 2, 0, 1))
sketch19.addConstraint(Sketcher.Constraint("Vertical", 0))
sketch19.addConstraint(Sketcher.Constraint("Horizontal", 1))
sketch19.addConstraint(Sketcher.Constraint("Vertical", 2))
sketch19.addConstraint(Sketcher.Constraint("Horizontal", 3))
sketch19.addConstraint(Sketcher.Constraint("Equal", 3, 0))
sketch19.addConstraint(Sketcher.Constraint("DistanceX", 1, 1, 1, 2, 10.0))
sketch19.addConstraint(Sketcher.Constraint("DistanceX", 0, 2, -1, 1, 5.0))
sketch19.addConstraint(Sketcher.Constraint("DistanceY", -1, 1, 0, 2, 4.85))
pocket8 = doc.addObject("PartDesign::Pocket", "Pocket007")
body2.addObject(pocket8)
pocket8.Profile = sketch19
pocket8.Length = 7.71

sketch20 = doc.addObject("Sketcher::SketchObject", "Sketch019")
body2.addObject(sketch20)
sketch20.AttachmentSupport = (doc.getObject("XY_Plane001"), [""])
sketch20.MapMode = "FlatFace"
sketch20.AttachmentOffset = App.Placement(Vector(0, 0, -5), App.Rotation())
sketch20.addGeometry(Part.LineSegment(Vector(-5, 15, 0), Vector(-5, 5, 0)), False)
sketch20.addGeometry(Part.LineSegment(Vector(-5, 5, 0), Vector(5, 5, 0)), False)
sketch20.addGeometry(Part.LineSegment(Vector(5, 5, 0), Vector(5, 15, 0)), False)
sketch20.addGeometry(Part.LineSegment(Vector(5, 15, 0), Vector(-5, 15, 0)), False)
sketch20.addConstraint(Sketcher.Constraint("Coincident", 0, 2, 1, 1))
sketch20.addConstraint(Sketcher.Constraint("Coincident", 1, 2, 2, 1))
sketch20.addConstraint(Sketcher.Constraint("Coincident", 2, 2, 3, 1))
sketch20.addConstraint(Sketcher.Constraint("Coincident", 3, 2, 0, 1))
sketch20.addConstraint(Sketcher.Constraint("Vertical", 0))
sketch20.addConstraint(Sketcher.Constraint("Horizontal", 1))
sketch20.addConstraint(Sketcher.Constraint("Vertical", 2))
sketch20.addConstraint(Sketcher.Constraint("Horizontal", 3))
sketch20.addConstraint(Sketcher.Constraint("Equal", 3, 0))
sketch20.addConstraint(Sketcher.Constraint("DistanceX", 1, 1, 1, 2, 10.0))
sketch20.addConstraint(Sketcher.Constraint("DistanceX", 0, 2, -1, 1, 5.0))
sketch20.addConstraint(Sketcher.Constraint("DistanceY", -1, 1, 0, 2, 4.85))
pad12 = doc.addObject("PartDesign::Pad", "Pad011")
body2.addObject(pad12)
pad12.Profile = sketch20
pad12.Length = 6.1

sketch21 = doc.addObject("Sketcher::SketchObject", "Sketch020")
body2.addObject(sketch21)
sketch21.AttachmentSupport = (doc.getObject("XY_Plane001"), [""])
sketch21.MapMode = "FlatFace"
sketch21.AttachmentOffset = App.Placement(Vector(0, 0, 1.1), App.Rotation())
sketch21.addGeometry(Part.Circle(Vector(0, 9.8, 0), Vector(0, 0, 1), 3.2), False)
sketch21.addConstraint(Sketcher.Constraint("PointOnObject", 0, 3, -2))
sketch21.addConstraint(Sketcher.Constraint("Diameter", 0, 6.5))
sketch21.addConstraint(Sketcher.Constraint("DistanceY", -1, 1, 0, 3, 9.85))
pad13 = doc.addObject("PartDesign::Pad", "Pad012")
body2.addObject(pad13)
pad13.Profile = sketch21
pad13.Length = 10

sketch22 = doc.addObject("Sketcher::SketchObject", "Sketch021")
body2.addObject(sketch22)
sketch22.AttachmentSupport = (doc.getObject("XY_Plane001"), [""])
sketch22.MapMode = "FlatFace"
sketch22.AttachmentOffset = App.Placement(Vector(0, 0, -5), App.Rotation())
sketch22.addGeometry(Part.Circle(Vector(0, 9.8, 0), Vector(0, 0, 1), 1.6), False)
sketch22.addConstraint(Sketcher.Constraint("PointOnObject", 0, 3, -2))
sketch22.addConstraint(Sketcher.Constraint("Diameter", 0, 3.25))
sketch22.addConstraint(Sketcher.Constraint("DistanceY", -1, 1, 0, 3, 9.85))
pocket9 = doc.addObject("PartDesign::Pocket", "Pocket008")
body2.addObject(pocket9)
pocket9.Profile = sketch22
pocket9.Length = 2.7
pocket9.Reversed = True

sketch23 = doc.addObject("Sketcher::SketchObject", "Sketch022")
body2.addObject(sketch23)
sketch23.AttachmentSupport = (doc.getObject("XY_Plane001"), [""])
sketch23.MapMode = "FlatFace"
sketch23.AttachmentOffset = App.Placement(Vector(0, 0, 11.1), App.Rotation())
sketch23.addGeometry(Part.LineSegment(Vector(-3, 13, 0), Vector(-3, 6, 0)), False)
sketch23.addGeometry(Part.LineSegment(Vector(-3, 6, 0), Vector(3, 6, 0)), False)
sketch23.addGeometry(Part.LineSegment(Vector(3, 6, 0), Vector(3, 13, 0)), False)
sketch23.addGeometry(Part.LineSegment(Vector(3, 13, 0), Vector(-3, 13, 0)), False)
sketch23.addConstraint(Sketcher.Constraint("Coincident", 0, 2, 1, 1))
sketch23.addConstraint(Sketcher.Constraint("Coincident", 1, 2, 2, 1))
sketch23.addConstraint(Sketcher.Constraint("Coincident", 2, 2, 3, 1))
sketch23.addConstraint(Sketcher.Constraint("Coincident", 3, 2, 0, 1))
sketch23.addConstraint(Sketcher.Constraint("Vertical", 0))
sketch23.addConstraint(Sketcher.Constraint("Horizontal", 1))
sketch23.addConstraint(Sketcher.Constraint("Vertical", 2))
sketch23.addConstraint(Sketcher.Constraint("Horizontal", 3))
sketch23.addConstraint(Sketcher.Constraint("Equal", 3, 0))
sketch23.addConstraint(Sketcher.Constraint("DistanceX", 1, 1, 1, 2, 6.8))
sketch23.addConstraint(Sketcher.Constraint("DistanceX", 0, 2, -1, 1, 3.4))
sketch23.addConstraint(Sketcher.Constraint("DistanceY", -1, 1, 0, 2, 6.45))
pad14 = doc.addObject("PartDesign::Pad", "Pad013")
body2.addObject(pad14)
pad14.Profile = sketch23
pad14.Length = 5

sketch24 = doc.addObject("Sketcher::SketchObject", "Sketch023")
body2.addObject(sketch24)
sketch24.AttachmentSupport = (doc.getObject("XZ_Plane001"), [""])
sketch24.MapMode = "FlatFace"
sketch24.AttachmentOffset = App.Placement(Vector(0, 0, -6.45), App.Rotation())
sketch24.addGeometry(Part.Circle(Vector(0, 12.8, 0), Vector(0, 0, 1), 1.7), False)
sketch24.addConstraint(Sketcher.Constraint("PointOnObject", 0, 3, -2))
sketch24.addConstraint(Sketcher.Constraint("Diameter", 0, 3.35))
sketch24.addConstraint(Sketcher.Constraint("DistanceY", -1, 1, 0, 3, 12.79))
pocket10 = doc.addObject("PartDesign::Pocket", "Pocket009")
body2.addObject(pocket10)
pocket10.Profile = sketch24
pocket10.Length = 10

sketch25 = doc.addObject("Sketcher::SketchObject", "Sketch024")
body2.addObject(sketch25)
sketch25.AttachmentSupport = (doc.getObject("XY_Plane001"), [""])
sketch25.MapMode = "FlatFace"
sketch25.AttachmentOffset = App.Placement(Vector(0, 0, 16.1), App.Rotation())
sketch25.addGeometry(Part.LineSegment(Vector(0, 13.2, 0), Vector(-3.4, 13.2, 0)), False)
sketch25.addGeometry(Part.LineSegment(Vector(-3.4, 13.2, 0), Vector(-3.4, 9.8, 0)), False)
sketch25.addGeometry(Part.ArcOfCircle(Part.Circle(Vector(0, 9.9, 0), Vector(0, 0, 1), 3.4), math.radians(135), math.radians(180)), False)
sketch25.addGeometry(Part.ArcOfCircle(Part.Circle(Vector(0, 9.9, 0), Vector(0, 0, 1), 3.4), math.radians(90), math.radians(135)), False)
sketch25.addGeometry(Part.ArcOfCircle(Part.Circle(Vector(0, 9.8, 0), Vector(0, 0, 1), 3.4), math.radians(180), math.radians(270)), False)
sketch25.addGeometry(Part.LineSegment(Vector(-3.4, 9.8, 0), Vector(-3.4, 6.5, 0)), False)
sketch25.addGeometry(Part.LineSegment(Vector(-3.4, 6.5, 0), Vector(0, 6.5, 0)), False)
sketch25.addGeometry(Part.ArcOfCircle(Part.Circle(Vector(0, 9.8, 0), Vector(0, 0, 1), 3.4), math.radians(-90), math.radians(-45)), False)
sketch25.addGeometry(Part.LineSegment(Vector(0, 6.5, 0), Vector(3.4, 6.5, 0)), False)
sketch25.addGeometry(Part.LineSegment(Vector(3.4, 6.5, 0), Vector(3.4, 9.8, 0)), False)
sketch25.addGeometry(Part.ArcOfCircle(Part.Circle(Vector(0, 9.8, 0), Vector(0, 0, 1), 3.4), math.radians(-45), math.radians(0)), False)
sketch25.addGeometry(Part.LineSegment(Vector(3.4, 13.2, 0), Vector(0, 13.2, 0)), False)
sketch25.addGeometry(Part.ArcOfCircle(Part.Circle(Vector(0, 9.8, 0), Vector(0, 0, 1), 3.4), math.radians(0), math.radians(90)), False)
sketch25.addGeometry(Part.LineSegment(Vector(3.4, 9.8, 0), Vector(3.4, 13.2, 0)), False)
sketch25.addConstraint(Sketcher.Constraint("Coincident", 0, 2, 1, 1))
sketch25.addConstraint(Sketcher.Constraint("Tangent", 1, 2, 2, 2))
sketch25.addConstraint(Sketcher.Constraint("Tangent", 2, 1, 3, 2))
sketch25.addConstraint(Sketcher.Constraint("Tangent", 3, 1, 0, 1))
sketch25.addConstraint(Sketcher.Constraint("Tangent", 4, 1, 5, 1))
sketch25.addConstraint(Sketcher.Constraint("Coincident", 5, 2, 6, 1))
sketch25.addConstraint(Sketcher.Constraint("Tangent", 6, 2, 4, 2))
sketch25.addConstraint(Sketcher.Constraint("Tangent", 7, 1, 8, 1))
sketch25.addConstraint(Sketcher.Constraint("Coincident", 8, 2, 9, 1))
sketch25.addConstraint(Sketcher.Constraint("Tangent", 9, 2, 10, 2))
sketch25.addConstraint(Sketcher.Constraint("Tangent", 10, 1, 7, 2))
sketch25.addConstraint(Sketcher.Constraint("Tangent", 11, 2, 12, 2))
sketch25.addConstraint(Sketcher.Constraint("Tangent", 12, 1, 13, 1))
sketch25.addConstraint(Sketcher.Constraint("Coincident", 13, 2, 11, 1))
sketch25.addConstraint(Sketcher.Constraint("Horizontal", 0))
sketch25.addConstraint(Sketcher.Constraint("Vertical", 1))
sketch25.addConstraint(Sketcher.Constraint("Vertical", 5))
sketch25.addConstraint(Sketcher.Constraint("Horizontal", 6))
sketch25.addConstraint(Sketcher.Constraint("Horizontal", 8))
sketch25.addConstraint(Sketcher.Constraint("Vertical", 9))
sketch25.addConstraint(Sketcher.Constraint("Horizontal", 11))
sketch25.addConstraint(Sketcher.Constraint("Vertical", 13))
sketch25.addConstraint(Sketcher.Constraint("Coincident", 4, 3, 2, 3))
sketch25.addConstraint(Sketcher.Constraint("Coincident", 7, 3, 2, 3))
sketch25.addConstraint(Sketcher.Constraint("Coincident", 12, 3, 2, 3))
sketch25.addConstraint(Sketcher.Constraint("Coincident", 11, 2, 3, 1))
sketch25.addConstraint(Sketcher.Constraint("Coincident", 12, 1, 9, 2))
sketch25.addConstraint(Sketcher.Constraint("Equal", 3, 4))
sketch25.addConstraint(Sketcher.Constraint("PointOnObject", 2, 3, -2))
sketch25.addConstraint(Sketcher.Constraint("Radius", 2, 3.4))
sketch25.addConstraint(Sketcher.Constraint("DistanceY", -1, 1, 2, 3, 9.85))
sketch25.addConstraint(Sketcher.Constraint("DistanceX", 2, 1, -1, 1, 2.404163))
sketch25.addConstraint(Sketcher.Constraint("DistanceX", -1, 1, 10, 1, 2.404163))
pocket11 = doc.addObject("PartDesign::Pocket", "Pocket010")
body2.addObject(pocket11)
pocket11.Profile = sketch25
pocket11.Length = 10

doc.recompute()
